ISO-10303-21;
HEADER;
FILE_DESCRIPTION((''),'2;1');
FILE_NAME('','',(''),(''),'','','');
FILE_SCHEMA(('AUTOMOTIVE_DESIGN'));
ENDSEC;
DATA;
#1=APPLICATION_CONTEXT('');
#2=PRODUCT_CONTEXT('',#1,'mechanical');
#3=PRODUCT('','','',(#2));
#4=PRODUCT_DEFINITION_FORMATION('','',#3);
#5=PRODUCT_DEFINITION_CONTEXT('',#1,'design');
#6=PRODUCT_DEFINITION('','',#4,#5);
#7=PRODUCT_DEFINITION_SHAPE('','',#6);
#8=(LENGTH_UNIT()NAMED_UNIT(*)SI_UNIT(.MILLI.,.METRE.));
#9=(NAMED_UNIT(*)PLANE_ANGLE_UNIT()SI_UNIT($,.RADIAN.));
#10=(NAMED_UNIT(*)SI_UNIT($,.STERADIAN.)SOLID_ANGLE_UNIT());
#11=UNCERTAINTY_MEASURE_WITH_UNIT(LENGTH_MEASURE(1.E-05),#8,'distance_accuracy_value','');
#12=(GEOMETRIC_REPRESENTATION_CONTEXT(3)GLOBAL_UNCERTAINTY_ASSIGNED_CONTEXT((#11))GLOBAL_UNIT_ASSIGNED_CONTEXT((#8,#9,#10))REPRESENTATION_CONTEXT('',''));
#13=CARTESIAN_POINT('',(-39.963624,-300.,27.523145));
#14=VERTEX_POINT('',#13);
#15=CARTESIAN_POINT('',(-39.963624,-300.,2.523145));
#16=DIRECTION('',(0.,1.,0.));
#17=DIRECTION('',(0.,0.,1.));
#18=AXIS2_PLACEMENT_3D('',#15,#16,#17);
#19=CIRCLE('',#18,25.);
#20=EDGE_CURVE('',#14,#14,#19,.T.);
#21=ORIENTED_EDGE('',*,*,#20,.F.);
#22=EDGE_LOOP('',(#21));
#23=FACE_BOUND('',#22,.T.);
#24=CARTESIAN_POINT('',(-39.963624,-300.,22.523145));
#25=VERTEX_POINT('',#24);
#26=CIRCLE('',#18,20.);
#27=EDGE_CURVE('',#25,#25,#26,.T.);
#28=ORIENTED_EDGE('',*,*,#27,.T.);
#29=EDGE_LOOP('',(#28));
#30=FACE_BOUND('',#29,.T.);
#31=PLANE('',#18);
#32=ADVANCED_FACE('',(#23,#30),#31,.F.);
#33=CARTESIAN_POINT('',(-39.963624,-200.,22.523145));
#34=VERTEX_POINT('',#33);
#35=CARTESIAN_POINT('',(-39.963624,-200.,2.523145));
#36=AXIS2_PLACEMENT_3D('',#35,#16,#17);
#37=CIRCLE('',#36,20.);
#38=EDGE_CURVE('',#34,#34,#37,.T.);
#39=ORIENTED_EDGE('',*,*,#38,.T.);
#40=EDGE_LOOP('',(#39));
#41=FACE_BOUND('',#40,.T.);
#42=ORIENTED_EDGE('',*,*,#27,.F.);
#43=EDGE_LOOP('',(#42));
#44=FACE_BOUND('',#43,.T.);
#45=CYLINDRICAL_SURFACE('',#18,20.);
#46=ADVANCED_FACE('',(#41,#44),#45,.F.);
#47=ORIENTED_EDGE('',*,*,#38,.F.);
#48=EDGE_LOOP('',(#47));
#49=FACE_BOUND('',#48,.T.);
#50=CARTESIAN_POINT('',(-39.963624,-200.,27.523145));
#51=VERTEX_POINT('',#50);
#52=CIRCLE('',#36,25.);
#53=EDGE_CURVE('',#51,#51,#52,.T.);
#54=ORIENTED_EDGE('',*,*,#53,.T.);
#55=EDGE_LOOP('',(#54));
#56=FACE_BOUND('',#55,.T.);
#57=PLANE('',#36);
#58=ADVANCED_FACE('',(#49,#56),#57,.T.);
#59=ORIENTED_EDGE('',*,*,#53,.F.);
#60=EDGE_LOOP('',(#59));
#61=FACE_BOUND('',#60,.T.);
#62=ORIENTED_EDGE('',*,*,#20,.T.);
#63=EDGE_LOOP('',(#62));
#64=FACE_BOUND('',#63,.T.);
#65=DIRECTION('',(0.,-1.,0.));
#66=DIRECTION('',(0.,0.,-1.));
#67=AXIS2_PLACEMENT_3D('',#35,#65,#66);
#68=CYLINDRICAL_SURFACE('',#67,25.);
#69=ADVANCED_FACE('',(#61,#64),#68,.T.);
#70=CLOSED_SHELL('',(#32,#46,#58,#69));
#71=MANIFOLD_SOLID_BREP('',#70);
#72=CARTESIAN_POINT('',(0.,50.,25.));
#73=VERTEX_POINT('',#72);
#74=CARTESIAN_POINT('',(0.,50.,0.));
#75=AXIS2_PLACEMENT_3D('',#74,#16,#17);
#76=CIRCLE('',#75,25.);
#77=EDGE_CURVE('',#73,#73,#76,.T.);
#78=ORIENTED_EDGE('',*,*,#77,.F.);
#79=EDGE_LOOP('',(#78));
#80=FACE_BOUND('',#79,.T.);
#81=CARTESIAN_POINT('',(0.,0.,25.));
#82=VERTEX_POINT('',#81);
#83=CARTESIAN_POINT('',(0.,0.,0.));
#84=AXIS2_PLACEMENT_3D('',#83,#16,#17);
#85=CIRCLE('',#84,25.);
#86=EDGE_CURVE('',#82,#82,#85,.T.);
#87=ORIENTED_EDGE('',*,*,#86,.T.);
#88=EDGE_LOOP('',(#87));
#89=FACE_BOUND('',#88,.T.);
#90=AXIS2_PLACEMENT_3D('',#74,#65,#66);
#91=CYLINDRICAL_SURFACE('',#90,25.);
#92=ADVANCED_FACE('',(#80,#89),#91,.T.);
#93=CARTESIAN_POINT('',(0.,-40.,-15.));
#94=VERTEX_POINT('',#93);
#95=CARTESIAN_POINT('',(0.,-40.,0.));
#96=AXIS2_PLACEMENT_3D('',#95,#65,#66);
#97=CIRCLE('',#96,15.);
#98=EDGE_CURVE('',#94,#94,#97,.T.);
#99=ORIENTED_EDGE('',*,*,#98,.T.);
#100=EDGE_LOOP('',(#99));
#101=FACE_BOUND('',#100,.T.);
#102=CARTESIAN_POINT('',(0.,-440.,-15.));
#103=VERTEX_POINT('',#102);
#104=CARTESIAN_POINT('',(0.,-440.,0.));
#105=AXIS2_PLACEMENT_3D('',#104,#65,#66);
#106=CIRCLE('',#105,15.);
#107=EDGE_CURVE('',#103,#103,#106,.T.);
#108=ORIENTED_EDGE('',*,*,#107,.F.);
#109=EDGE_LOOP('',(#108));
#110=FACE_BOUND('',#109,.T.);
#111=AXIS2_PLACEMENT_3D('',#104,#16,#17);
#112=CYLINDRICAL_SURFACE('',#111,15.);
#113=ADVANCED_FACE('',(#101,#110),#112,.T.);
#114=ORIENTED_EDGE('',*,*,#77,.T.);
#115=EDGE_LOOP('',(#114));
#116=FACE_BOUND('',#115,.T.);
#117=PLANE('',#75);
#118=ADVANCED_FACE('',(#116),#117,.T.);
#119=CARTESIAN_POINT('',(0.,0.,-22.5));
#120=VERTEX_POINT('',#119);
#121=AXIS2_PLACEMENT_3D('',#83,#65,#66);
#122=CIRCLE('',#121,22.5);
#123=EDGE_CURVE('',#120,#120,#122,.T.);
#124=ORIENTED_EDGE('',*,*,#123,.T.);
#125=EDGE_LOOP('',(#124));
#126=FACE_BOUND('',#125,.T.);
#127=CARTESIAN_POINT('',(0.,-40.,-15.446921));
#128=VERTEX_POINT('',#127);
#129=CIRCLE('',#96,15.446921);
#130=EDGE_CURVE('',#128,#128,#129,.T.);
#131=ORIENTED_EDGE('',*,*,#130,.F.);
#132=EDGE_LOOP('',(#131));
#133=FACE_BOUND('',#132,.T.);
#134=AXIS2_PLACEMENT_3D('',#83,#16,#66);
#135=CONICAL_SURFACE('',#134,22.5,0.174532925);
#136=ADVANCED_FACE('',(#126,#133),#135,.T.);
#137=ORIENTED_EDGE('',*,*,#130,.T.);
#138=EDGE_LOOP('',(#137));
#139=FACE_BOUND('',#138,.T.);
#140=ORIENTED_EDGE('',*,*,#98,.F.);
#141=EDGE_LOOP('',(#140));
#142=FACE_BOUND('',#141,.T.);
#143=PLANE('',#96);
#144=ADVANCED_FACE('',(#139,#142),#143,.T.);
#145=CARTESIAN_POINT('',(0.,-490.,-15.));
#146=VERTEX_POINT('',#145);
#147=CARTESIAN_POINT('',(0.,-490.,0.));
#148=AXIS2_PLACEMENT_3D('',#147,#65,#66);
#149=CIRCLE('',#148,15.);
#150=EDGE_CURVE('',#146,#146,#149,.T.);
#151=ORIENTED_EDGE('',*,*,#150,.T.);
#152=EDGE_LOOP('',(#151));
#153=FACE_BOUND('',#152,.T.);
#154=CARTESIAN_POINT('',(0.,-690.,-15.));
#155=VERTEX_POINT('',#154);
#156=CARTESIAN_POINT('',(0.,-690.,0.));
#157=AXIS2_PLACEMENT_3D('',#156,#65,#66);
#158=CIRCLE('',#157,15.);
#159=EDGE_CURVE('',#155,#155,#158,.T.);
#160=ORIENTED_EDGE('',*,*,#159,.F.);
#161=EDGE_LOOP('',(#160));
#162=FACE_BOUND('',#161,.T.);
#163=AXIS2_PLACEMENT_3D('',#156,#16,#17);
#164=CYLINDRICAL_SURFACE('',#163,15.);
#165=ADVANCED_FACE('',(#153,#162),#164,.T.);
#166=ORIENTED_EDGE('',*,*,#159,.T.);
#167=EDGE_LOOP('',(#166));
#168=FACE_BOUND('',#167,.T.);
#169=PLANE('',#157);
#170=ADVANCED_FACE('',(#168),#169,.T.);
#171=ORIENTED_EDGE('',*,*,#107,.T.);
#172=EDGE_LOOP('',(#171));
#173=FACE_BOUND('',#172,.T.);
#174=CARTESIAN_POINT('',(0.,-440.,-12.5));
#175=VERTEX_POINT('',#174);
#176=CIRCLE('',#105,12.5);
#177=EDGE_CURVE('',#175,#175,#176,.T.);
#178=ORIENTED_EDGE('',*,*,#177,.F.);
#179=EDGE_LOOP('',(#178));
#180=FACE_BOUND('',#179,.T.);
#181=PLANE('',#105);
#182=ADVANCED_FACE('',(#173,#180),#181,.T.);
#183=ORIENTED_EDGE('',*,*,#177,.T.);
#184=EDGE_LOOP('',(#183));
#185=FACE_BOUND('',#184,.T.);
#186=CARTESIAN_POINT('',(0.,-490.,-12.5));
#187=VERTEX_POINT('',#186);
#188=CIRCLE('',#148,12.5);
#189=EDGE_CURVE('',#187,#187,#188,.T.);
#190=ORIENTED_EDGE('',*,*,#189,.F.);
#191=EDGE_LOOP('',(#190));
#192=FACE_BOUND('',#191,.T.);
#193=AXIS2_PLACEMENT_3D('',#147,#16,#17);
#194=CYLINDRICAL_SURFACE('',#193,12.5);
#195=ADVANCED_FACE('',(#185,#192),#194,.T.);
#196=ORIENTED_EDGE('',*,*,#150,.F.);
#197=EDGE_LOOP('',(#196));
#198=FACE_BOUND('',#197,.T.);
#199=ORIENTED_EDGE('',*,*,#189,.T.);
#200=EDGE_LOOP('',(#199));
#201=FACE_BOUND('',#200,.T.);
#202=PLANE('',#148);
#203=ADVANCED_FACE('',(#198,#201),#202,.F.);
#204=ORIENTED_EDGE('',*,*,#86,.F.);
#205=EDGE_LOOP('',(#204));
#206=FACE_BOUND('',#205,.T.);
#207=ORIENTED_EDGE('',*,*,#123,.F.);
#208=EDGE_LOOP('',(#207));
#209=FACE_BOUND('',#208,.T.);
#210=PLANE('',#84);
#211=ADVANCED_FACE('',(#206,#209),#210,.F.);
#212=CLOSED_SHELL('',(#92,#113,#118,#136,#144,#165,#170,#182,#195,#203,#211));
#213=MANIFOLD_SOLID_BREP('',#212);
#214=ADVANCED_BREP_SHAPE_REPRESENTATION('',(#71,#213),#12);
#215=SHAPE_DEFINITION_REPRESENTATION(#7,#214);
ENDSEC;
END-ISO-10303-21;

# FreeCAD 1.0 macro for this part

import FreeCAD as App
import Part
import Sketcher

V = App.Vector

doc = App.newDocument("Part")
body = doc.addObject("PartDesign::Body", "Body")

sketch1 = doc.addObject("Sketcher::SketchObject", "Sketch")
body.addObject(sketch1)
sketch1.AttachmentSupport = (doc.XZ_Plane, [""])
sketch1.MapMode = "FlatFace"
sketch1.addGeometry(Part.Circle(V(0, 0, 0), V(0, 0, 1), 25), False)
sketch1.addConstraint([
    Sketcher.Constraint("Coincident", 0, 3, -1, 1),
    Sketcher.Constraint("Diameter", 0, 50.0),
])
pad1 = doc.addObject("PartDesign::Pad", "Pad")
body.addObject(pad1)
pad1.Profile = sketch1
pad1.Length = 50
pad1.Reversed = True

sketch2 = doc.addObject("Sketcher::SketchObject", "Sketch001")
body.addObject(sketch2)
sketch2.AttachmentSupport = (doc.XZ_Plane, [""])
sketch2.MapMode = "FlatFace"
sketch2.addGeometry(Part.Circle(V(0, 0, 0), V(0, 0, 1), 22), False)
sketch2.addConstraint([
    Sketcher.Constraint("Coincident", 0, 3, -1, 1),
    Sketcher.Constraint("Diameter", 0, 45.0),
])
pad2 = doc.addObject("PartDesign::Pad", "Pad001")
body.addObject(pad2)
pad2.Profile = sketch2
pad2.Length = 40
pad2.TaperAngle = -10

sketch3 = doc.addObject("Sketcher::SketchObject", "Sketch002")
body.addObject(sketch3)
sketch3.AttachmentSupport = (doc.XZ_Plane, [""])
sketch3.MapMode = "FlatFace"
sketch3.AttachmentOffset = App.Placement(V(0, 0, 40), App.Rotation())
sketch3.addGeometry(Part.Circle(V(0, 0, 0), V(0, 0, 1), 15), False)
sketch3.addConstraint([
    Sketcher.Constraint("Coincident", 0, 3, -1, 1),
    Sketcher.Constraint("Diameter", 0, 30.0),
])
pad3 = doc.addObject("PartDesign::Pad", "Pad002")
body.addObject(pad3)
pad3.Profile = sketch3
pad3.Length = 400

sketch4 = doc.addObject("Sketcher::SketchObject", "Sketch003")
body.addObject(sketch4)
sketch4.AttachmentSupport = (doc.XZ_Plane, [""])
sketch4.MapMode = "FlatFace"
sketch4.AttachmentOffset = App.Placement(V(0, 0, 440), App.Rotation())
sketch4.addGeometry(Part.Circle(V(0, 0, 0), V(0, 0, 1), 12), False)
sketch4.addConstraint([
    Sketcher.Constraint("Coincident", 0, 3, -1, 1),
    Sketcher.Constraint("Diameter", 0, 25.0),
])
pad4 = doc.addObject("PartDesign::Pad", "Pad003")
body.addObject(pad4)
pad4.Profile = sketch4
pad4.Length = 50

sketch5 = doc.addObject("Sketcher::SketchObject", "Sketch004")
body.addObject(sketch5)
sketch5.AttachmentSupport = (doc.XZ_Plane, [""])
sketch5.MapMode = "FlatFace"
sketch5.AttachmentOffset = App.Placement(V(0, 0, 490), App.Rotation())
sketch5.addGeometry(Part.Circle(V(0, 0, 0), V(0, 0, 1), 15), False)
sketch5.addConstraint([
    Sketcher.Constraint("Coincident", 0, 3, -1, 1),
    Sketcher.Constraint("Diameter", 0, 30.0),
])
pad5 = doc.addObject("PartDesign::Pad", "Pad004")
body.addObject(pad5)
pad5.Profile = sketch5
pad5.Length = 200
body2 = doc.addObject("PartDesign::Body", "Body001")

sketch6 = doc.addObject("Sketcher::SketchObject", "Sketch005")
body2.addObject(sketch6)
sketch6.AttachmentSupport = (doc.getObject("XZ_Plane001"), [""])
sketch6.MapMode = "FlatFace"
sketch6.AttachmentOffset = App.Placement(V(0, 0, 300), App.Rotation())
sketch6.addGeometry(Part.Circle(V(-40, 3, 0), V(0, 0, 1), 25), False)
sketch6.addConstraint([
    Sketcher.Constraint("Diameter", 0, 50.0),
    Sketcher.Constraint("DistanceX", 0, 3, -1, 1, 39.963624),
    Sketcher.Constraint("DistanceY", -1, 1, 0, 3, 2.523145),
])
pad6 = doc.addObject("PartDesign::Pad", "Pad005")
body2.addObject(pad6)
pad6.Profile = sketch6
pad6.Length = 100
pad6.Reversed = True

sketch7 = doc.addObject("Sketcher::SketchObject", "Sketch006")
body2.addObject(sketch7)
sketch7.AttachmentSupport = (doc.getObject("XZ_Plane001"), [""])
sketch7.MapMode = "FlatFace"
sketch7.AttachmentOffset = App.Placement(V(0, 0, 200), App.Rotation())
sketch7.addGeometry(Part.Circle(V(-40, 3, 0), V(0, 0, 1), 20), False)
sketch7.addConstraint([
    Sketcher.Constraint("Diameter", 0, 40.0),
    Sketcher.Constraint("DistanceX", 0, 3, -1, 1, 39.963624),
    Sketcher.Constraint("DistanceY", -1, 1, 0, 3, 2.523145),
])
pocket1 = doc.addObject("PartDesign::Pocket", "Pocket")
body2.addObject(pocket1)
pocket1.Profile = sketch7
pocket1.Length = 100
pocket1.Reversed = True

doc.recompute()
